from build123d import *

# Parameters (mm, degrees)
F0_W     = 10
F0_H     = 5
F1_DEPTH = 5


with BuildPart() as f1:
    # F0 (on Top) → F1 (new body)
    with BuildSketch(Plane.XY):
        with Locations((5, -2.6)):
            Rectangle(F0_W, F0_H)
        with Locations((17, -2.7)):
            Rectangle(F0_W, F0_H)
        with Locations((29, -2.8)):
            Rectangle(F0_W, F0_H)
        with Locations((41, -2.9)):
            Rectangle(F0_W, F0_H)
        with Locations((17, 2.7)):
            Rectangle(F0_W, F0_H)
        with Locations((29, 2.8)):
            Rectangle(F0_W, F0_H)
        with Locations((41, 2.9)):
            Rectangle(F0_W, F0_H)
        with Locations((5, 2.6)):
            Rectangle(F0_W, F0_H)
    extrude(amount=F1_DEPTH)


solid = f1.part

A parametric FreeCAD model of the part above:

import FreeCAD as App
import Part
import Sketcher
Q = App.Units.Quantity


def add_polygon(sketch, points):
    """Adds a closed chain of lines whose ends are joined by coincident constraints."""
    first, n = sketch.GeometryCount, len(points)
    for a, b in zip(points, points[1:] + points[:1]):
        sketch.addGeometry(Part.LineSegment(App.Vector(*a, 0), App.Vector(*b, 0)), False)
    for i in range(n):
        sketch.addConstraint(Sketcher.Constraint("Coincident", first + i, 2, first + (i + 1) % n, 1))

doc = App.newDocument("Part")
params = doc.addObject("Spreadsheet::Sheet", "Params")
for row, (alias, value) in enumerate([
    ("sketch1_width", "10 mm"),
    ("sketch1_height", "5 mm"),
    ("pad1_length", "5 mm"),
], start=1):
    params.set(f"A{row}", alias)
    params.set(f"B{row}", "=" + value)
    params.setAlias(f"B{row}", alias)

body = doc.addObject("PartDesign::Body", "Body")
body.AllowCompound = True

# Sketch on XY plane
sketch1 = body.newObject("Sketcher::SketchObject", "Sketch")
sketch1.AttachmentSupport = (doc.getObject("XY_Plane"), [""])
sketch1.MapMode = "FlatFace"
add_polygon(sketch1, [(0, -0.1), (0, -5.1), (10, -5.1), (10, -0.1)])  # lines 0-3
add_polygon(sketch1, [(12, -0.2), (12, -5.2), (22, -5.2), (22, -0.2)])  # lines 4-7
add_polygon(sketch1, [(24, -0.3), (24, -5.3), (34, -5.3), (34, -0.3)])  # lines 8-11
add_polygon(sketch1, [(36, -0.4), (36, -5.4), (46, -5.4), (46, -0.4)])  # lines 12-15
add_polygon(sketch1, [(12, 5.2), (12, 0.2), (22, 0.2), (22, 5.2)])  # lines 16-19
add_polygon(sketch1, [(24, 5.3), (24, 0.3), (34, 0.3), (34, 5.3)])  # lines 20-23
add_polygon(sketch1, [(36, 5.4), (36, 0.4), (46, 0.4), (46, 5.4)])  # lines 24-27
add_polygon(sketch1, [(0, 5.1), (0, 0.1), (10, 0.1), (10, 5.1)])  # lines 28-31
sketch1.addConstraint([
    Sketcher.Constraint("Vertical", 0),
    Sketcher.Constraint("Horizontal", 1),
    Sketcher.Constraint("Vertical", 2),
    Sketcher.Constraint("Horizontal", 3),
    Sketcher.Constraint("Vertical", 4),
    Sketcher.Constraint("Horizontal", 5),
    Sketcher.Constraint("Vertical", 6),
    Sketcher.Constraint("Horizontal", 7),
    Sketcher.Constraint("Vertical", 8),
    Sketcher.Constraint("Horizontal", 9),
    Sketcher.Constraint("Vertical", 10),
    Sketcher.Constraint("Horizontal", 11),
    Sketcher.Constraint("Vertical", 12),
    Sketcher.Constraint("Horizontal", 13),
    Sketcher.Constraint("Vertical", 14),
    Sketcher.Constraint("Horizontal", 15),
    Sketcher.Constraint("Vertical", 16),
    Sketcher.Constraint("Horizontal", 17),
    Sketcher.Constraint("Vertical", 18),
    Sketcher.Constraint("Horizontal", 19),
    Sketcher.Constraint("Vertical", 20),
    Sketcher.Constraint("Horizontal", 21),
    Sketcher.Constraint("Vertical", 22),
    Sketcher.Constraint("Horizontal", 23),
    Sketcher.Constraint("Vertical", 24),
    Sketcher.Constraint("Horizontal", 25),
    Sketcher.Constraint("Vertical", 26),
    Sketcher.Constraint("Horizontal", 27),
    Sketcher.Constraint("Vertical", 28),
    Sketcher.Constraint("Horizontal", 29),
    Sketcher.Constraint("Vertical", 30),
    Sketcher.Constraint("Horizontal", 31),
    Sketcher.Constraint("Symmetric", 3, 2, 28, 2, -1, 1),
    Sketcher.Constraint("Symmetric", 7, 2, 16, 2, -1),
    Sketcher.Constraint("Symmetric", 5, 2, 18, 2, -1),
    Sketcher.Constraint("Symmetric", 11, 2, 20, 2, -1),
    Sketcher.Constraint("Symmetric", 9, 2, 22, 2, -1),
    Sketcher.Constraint("Symmetric", 15, 2, 24, 2, -1),
    Sketcher.Constraint("Symmetric", 13, 2, 26, 2, -1),
    Sketcher.Constraint("Symmetric", 1, 2, 30, 2, -1),
    Sketcher.Constraint("PointOnObject", 0, 2, -2),
    Sketcher.Constraint("Equal", 3, 5),
    Sketcher.Constraint("Equal", 7, 9),
    Sketcher.Constraint("Equal", 11, 13),
    Sketcher.Constraint("Equal", 2, 4),
    Sketcher.Constraint("Equal", 6, 8),
    Sketcher.Constraint("Equal", 10, 12),
    Sketcher.Constraint("DistanceX", 1, 1, 1, 2, Q("10 mm")),
    Sketcher.Constraint("DistanceY", 0, 2, 0, 1, Q("5 mm")),
    Sketcher.Constraint("DistanceX", -1, 1, 4, 2, Q("12 mm")),
    Sketcher.Constraint("DistanceX", -1, 1, 8, 2, Q("24 mm")),
    Sketcher.Constraint("DistanceX", -1, 1, 12, 2, Q("36 mm")),
    Sketcher.Constraint("DistanceY", 0, 2, -1, 1, Q("5.1 mm")),
    Sketcher.Constraint("DistanceY", 4, 2, -1, 1, Q("5.2 mm")),
    Sketcher.Constraint("DistanceY", 8, 2, -1, 1, Q("5.3 mm")),
    Sketcher.Constraint("DistanceY", 12, 2, -1, 1, Q("5.4 mm")),
])
sketch1.setExpression("Constraints[79]", "Params.sketch1_width")
sketch1.setExpression("Constraints[80]", "Params.sketch1_height")
pad1 = body.newObject("PartDesign::Pad", "Pad")
pad1.Profile = sketch1
pad1.setExpression("Length", "Params.pad1_length")

doc.recompute()
